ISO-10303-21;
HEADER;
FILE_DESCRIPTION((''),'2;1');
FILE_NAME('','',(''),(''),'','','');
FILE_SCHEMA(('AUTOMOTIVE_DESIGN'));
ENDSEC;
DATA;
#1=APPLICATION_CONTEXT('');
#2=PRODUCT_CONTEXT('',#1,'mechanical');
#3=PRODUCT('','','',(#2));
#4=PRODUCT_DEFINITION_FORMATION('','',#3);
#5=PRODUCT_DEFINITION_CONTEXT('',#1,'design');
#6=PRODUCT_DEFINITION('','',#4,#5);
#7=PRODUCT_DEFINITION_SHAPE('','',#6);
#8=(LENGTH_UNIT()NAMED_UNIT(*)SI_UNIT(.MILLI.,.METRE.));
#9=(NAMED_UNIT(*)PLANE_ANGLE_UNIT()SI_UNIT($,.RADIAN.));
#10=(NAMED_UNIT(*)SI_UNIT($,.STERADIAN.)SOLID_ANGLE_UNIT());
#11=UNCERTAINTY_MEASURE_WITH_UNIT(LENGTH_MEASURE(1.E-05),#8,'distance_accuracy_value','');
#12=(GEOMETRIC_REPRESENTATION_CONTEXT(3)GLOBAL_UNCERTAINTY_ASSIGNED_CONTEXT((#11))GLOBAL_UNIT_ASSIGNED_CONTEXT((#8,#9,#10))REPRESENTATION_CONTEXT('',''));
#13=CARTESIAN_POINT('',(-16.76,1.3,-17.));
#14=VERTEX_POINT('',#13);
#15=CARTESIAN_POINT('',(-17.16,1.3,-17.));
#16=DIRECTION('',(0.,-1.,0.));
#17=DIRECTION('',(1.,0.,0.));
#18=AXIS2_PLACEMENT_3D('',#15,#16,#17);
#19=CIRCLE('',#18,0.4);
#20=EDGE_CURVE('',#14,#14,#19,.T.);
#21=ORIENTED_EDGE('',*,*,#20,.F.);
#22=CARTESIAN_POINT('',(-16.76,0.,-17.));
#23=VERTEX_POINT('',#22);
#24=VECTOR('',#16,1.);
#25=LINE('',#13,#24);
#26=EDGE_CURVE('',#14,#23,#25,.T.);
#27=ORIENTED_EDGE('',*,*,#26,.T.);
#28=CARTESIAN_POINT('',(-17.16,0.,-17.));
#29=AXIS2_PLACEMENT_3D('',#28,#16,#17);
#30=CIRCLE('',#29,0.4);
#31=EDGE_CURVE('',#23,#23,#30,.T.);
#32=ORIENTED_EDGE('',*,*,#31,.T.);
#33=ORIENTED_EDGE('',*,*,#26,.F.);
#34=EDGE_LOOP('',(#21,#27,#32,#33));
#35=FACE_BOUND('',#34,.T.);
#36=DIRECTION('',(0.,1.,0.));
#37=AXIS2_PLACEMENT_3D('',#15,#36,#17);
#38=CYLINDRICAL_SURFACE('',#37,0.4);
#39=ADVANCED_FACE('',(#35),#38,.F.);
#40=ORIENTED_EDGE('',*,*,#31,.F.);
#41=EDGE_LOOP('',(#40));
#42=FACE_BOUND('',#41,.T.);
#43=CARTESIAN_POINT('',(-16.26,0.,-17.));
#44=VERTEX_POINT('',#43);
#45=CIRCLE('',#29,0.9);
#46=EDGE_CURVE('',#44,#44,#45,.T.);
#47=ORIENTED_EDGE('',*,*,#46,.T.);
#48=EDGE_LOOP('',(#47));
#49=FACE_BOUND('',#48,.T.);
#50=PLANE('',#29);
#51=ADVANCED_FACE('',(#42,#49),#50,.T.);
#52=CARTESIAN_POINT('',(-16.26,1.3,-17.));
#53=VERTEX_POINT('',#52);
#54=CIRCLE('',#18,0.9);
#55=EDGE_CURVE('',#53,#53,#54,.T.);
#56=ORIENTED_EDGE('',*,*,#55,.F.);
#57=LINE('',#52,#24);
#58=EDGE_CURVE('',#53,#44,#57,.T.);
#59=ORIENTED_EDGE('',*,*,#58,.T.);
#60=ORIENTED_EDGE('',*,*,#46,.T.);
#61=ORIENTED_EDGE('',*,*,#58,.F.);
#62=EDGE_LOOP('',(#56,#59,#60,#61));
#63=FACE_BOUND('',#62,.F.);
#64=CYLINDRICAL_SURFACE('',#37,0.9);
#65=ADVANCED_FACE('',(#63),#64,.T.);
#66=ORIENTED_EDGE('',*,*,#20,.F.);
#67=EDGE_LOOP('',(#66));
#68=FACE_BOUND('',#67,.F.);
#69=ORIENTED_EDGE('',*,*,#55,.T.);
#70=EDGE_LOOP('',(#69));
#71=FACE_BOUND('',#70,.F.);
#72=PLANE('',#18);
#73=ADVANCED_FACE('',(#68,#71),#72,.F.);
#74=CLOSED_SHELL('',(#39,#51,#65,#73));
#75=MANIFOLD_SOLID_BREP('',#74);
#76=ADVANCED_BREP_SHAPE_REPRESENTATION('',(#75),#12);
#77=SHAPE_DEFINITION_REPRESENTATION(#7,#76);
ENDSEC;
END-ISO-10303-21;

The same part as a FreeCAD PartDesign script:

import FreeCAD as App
import Part
import Sketcher
Q = App.Units.Quantity

doc = App.newDocument("Part")
body = doc.addObject("PartDesign::Body", "Body")

sketch1 = body.newObject("Sketcher::SketchObject", "Sketch")
sketch1.AttachmentSupport = (doc.getObject("XY_Plane"), [""])
sketch1.MapMode = "FlatFace"
sketch1.addGeometry(Part.Circle(App.Vector(0, 0, 0), App.Vector(0, 0, 1), 0.4), False)
sketch1.addConstraint([
    Sketcher.Constraint("Coincident", 0, 3, -1, 1),
    Sketcher.Constraint("Diameter", 0, Q("0.8 mm")),
])
pad1 = body.newObject("PartDesign::Pad", "Pad")
pad1.Profile = sketch1
pad1.Length = 1.3
body2 = doc.addObject("PartDesign::Body", "Body001")

sketch2 = body2.newObject("Sketcher::SketchObject", "Sketch001")
sketch2.AttachmentSupport = (doc.getObject("XY_Plane001"), [""])
sketch2.MapMode = "FlatFace"
sketch2.addGeometry(Part.Circle(App.Vector(0, 0, 0), App.Vector(0, 0, 1), 0.9), False)
sketch2.addConstraint([
    Sketcher.Constraint("Coincident", 0, 3, -1, 1),
    Sketcher.Constraint("Diameter", 0, Q("1.8 mm")),
])
pad2 = body2.newObject("PartDesign::Pad", "Pad001")
pad2.Profile = sketch2
pad2.Length = 1.3
doc.recompute()

boolean = body2.newObject("PartDesign::Boolean", "Boolean")
boolean.Type = "Cut"
boolean.addObjects([body])
body3 = doc.addObject("PartDesign::Body", "Body002")
doc.recompute()

body2.Placement = App.Placement(App.Vector(-17.16, 1.3, -17), App.Rotation(App.Vector(1, 0, 0), 90))
boolean2 = body3.newObject("PartDesign::Boolean", "Boolean001")
boolean2.Type = "Fuse"
boolean2.addObjects([body2])

doc.recompute()
